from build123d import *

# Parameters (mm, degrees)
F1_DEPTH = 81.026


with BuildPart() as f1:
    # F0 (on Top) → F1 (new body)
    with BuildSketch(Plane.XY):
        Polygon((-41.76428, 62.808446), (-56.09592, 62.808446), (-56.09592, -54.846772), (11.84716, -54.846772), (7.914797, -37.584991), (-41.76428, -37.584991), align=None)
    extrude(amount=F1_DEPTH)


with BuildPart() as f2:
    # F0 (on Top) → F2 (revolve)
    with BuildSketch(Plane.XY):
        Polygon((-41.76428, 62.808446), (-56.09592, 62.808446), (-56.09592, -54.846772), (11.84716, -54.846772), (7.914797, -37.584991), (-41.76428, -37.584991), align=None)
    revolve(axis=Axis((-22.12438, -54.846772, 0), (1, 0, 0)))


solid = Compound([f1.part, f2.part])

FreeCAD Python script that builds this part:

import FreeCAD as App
import Part
import Sketcher
from FreeCAD import Vector
Q = App.Units.Quantity


def add_polygon(sketch, points):
    """Adds a closed chain of lines whose ends are joined by coincident constraints."""
    first, n = sketch.GeometryCount, len(points)
    for a, b in zip(points, points[1:] + points[:1]):
        sketch.addGeometry(Part.LineSegment(App.Vector(*a, 0), App.Vector(*b, 0)), False)
    for i in range(n):
        sketch.addConstraint(Sketcher.Constraint("Coincident", first + i, 2, first + (i + 1) % n, 1))

doc = App.newDocument("Part")
body = doc.addObject("PartDesign::Body", "Body")

# Sketch on XY plane
sketch1 = body.newObject("Sketcher::SketchObject", "Sketch")
sketch1.AttachmentSupport = (doc.getObject("XY_Plane"), [""])
sketch1.MapMode = "FlatFace"
add_polygon(sketch1, [(-41.76428, 62.808446), (-56.09592, 62.808446), (-56.09592, -54.846772), (11.84716, -54.846772), (7.914797, -37.584991), (-41.76428, -37.584991)])  # lines 0-5
sketch1.addConstraint([
    Sketcher.Constraint("Horizontal", 0),
    Sketcher.Constraint("Vertical", 1),
    Sketcher.Constraint("Horizontal", 2),
    Sketcher.Constraint("Horizontal", 4),
    Sketcher.Constraint("Vertical", 5),
    Sketcher.Constraint("DistanceX", 0, 2, 0, 1, Q("14.33164 mm")),
    Sketcher.Constraint("DistanceX", 2, 1, 2, 2, Q("67.94308 mm")),
    Sketcher.Constraint("DistanceY", 1, 2, 1, 1, Q("117.655218 mm")),
    Sketcher.Constraint("DistanceX", 4, 2, 4, 1, Q("49.679077 mm")),
    Sketcher.Constraint("DistanceY", 5, 1, 5, 2, Q("100.393437 mm")),
    Sketcher.Constraint("DistanceX", 0, 2, -1, 1, Q("56.09592 mm")),
    Sketcher.Constraint("DistanceY", 3, 2, -1, 1, Q("37.584991 mm")),
])
pad1 = body.newObject("PartDesign::Pad", "Pad")
pad1.Profile = sketch1
pad1.Length = Q("3.19 in")
body2 = doc.addObject("PartDesign::Body", "Body001")

# Sketch on XY plane
sketch2 = body2.newObject("Sketcher::SketchObject", "Sketch001")
sketch2.AttachmentSupport = (doc.getObject("XY_Plane001"), [""])
sketch2.MapMode = "FlatFace"
add_polygon(sketch2, [(-41.76428, 62.808446), (-56.09592, 62.808446), (-56.09592, -54.846772), (11.84716, -54.846772), (7.914797, -37.584991), (-41.76428, -37.584991)])  # lines 0-5
sketch2.addGeometry(Part.LineSegment(Vector(-56.09592, -54.846772, 0), Vector(11.84716, -54.846772, 0)), True)  # axis
sketch2.addConstraint([
    Sketcher.Constraint("Horizontal", 0),
    Sketcher.Constraint("Vertical", 1),
    Sketcher.Constraint("Horizontal", 2),
    Sketcher.Constraint("Horizontal", 4),
    Sketcher.Constraint("Vertical", 5),
    Sketcher.Constraint("Horizontal", 6),
    Sketcher.Constraint("Coincident", 6, 1, 1, 2),
    Sketcher.Constraint("Equal", 2, 6),
    Sketcher.Constraint("DistanceX", 0, 2, 0, 1, Q("14.33164 mm")),
    Sketcher.Constraint("DistanceX", 2, 1, 2, 2, Q("67.94308 mm")),
    Sketcher.Constraint("DistanceY", 1, 2, 1, 1, Q("117.655218 mm")),
    Sketcher.Constraint("DistanceX", 4, 2, 4, 1, Q("49.679077 mm")),
    Sketcher.Constraint("DistanceY", 5, 1, 5, 2, Q("100.393437 mm")),
    Sketcher.Constraint("DistanceX", 0, 2, -1, 1, Q("56.09592 mm")),
    Sketcher.Constraint("DistanceY", 3, 2, -1, 1, Q("37.584991 mm")),
])
revolution = body2.newObject("PartDesign::Revolution", "Revolution")
revolution.Profile = sketch2
revolution.ReferenceAxis = (sketch2, ["Axis0"])
revolution.Angle = 360

doc.recompute()
